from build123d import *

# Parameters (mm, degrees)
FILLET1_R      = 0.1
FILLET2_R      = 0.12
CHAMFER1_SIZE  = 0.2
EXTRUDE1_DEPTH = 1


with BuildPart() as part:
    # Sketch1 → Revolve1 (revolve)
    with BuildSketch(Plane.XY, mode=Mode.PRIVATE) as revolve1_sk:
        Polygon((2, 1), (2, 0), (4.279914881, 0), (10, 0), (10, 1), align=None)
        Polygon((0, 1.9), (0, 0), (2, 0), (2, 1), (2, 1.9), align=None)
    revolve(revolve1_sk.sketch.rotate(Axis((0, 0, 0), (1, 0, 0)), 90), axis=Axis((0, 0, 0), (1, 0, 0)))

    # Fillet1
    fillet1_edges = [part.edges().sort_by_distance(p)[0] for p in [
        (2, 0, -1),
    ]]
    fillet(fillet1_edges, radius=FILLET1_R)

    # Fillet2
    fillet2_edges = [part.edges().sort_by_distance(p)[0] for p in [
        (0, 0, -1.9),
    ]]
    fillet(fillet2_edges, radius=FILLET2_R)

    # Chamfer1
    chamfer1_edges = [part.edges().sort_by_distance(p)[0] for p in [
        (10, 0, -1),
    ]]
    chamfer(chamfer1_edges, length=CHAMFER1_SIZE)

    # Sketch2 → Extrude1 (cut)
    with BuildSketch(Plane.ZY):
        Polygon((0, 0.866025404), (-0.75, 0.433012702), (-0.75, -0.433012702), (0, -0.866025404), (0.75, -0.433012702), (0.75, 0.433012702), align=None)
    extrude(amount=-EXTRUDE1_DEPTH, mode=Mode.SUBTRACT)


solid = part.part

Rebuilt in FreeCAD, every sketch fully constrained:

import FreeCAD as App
import Part
import Sketcher
from FreeCAD import Vector
Q = App.Units.Quantity


def edges_at(feature, points):
    """Names of the edges that pass closest to the given points."""
    edges = feature.Shape.Edges
    near = lambda p: min(range(len(edges)), key=lambda i: edges[i].distToShape(Part.Vertex(*p))[0])
    return sorted({f"Edge{near(p) + 1}" for p in points})


def add_polygon(sketch, points):
    """Adds a closed chain of lines whose ends are joined by coincident constraints."""
    first, n = sketch.GeometryCount, len(points)
    for a, b in zip(points, points[1:] + points[:1]):
        sketch.addGeometry(Part.LineSegment(App.Vector(*a, 0), App.Vector(*b, 0)), False)
    for i in range(n):
        sketch.addConstraint(Sketcher.Constraint("Coincident", first + i, 2, first + (i + 1) % n, 1))

doc = App.newDocument("Part")
body = doc.addObject("PartDesign::Body", "Body")

# Sketch on XY plane
sketch1 = body.newObject("Sketcher::SketchObject", "Sketch")
sketch1.AttachmentSupport = (doc.getObject("XY_Plane"), [""])
sketch1.MapMode = "FlatFace"
add_polygon(sketch1, [(10, 0), (10, 1), (2, 1), (2, 1.9), (0, 1.9), (0, 0)])  # lines 0-5
sketch1.addConstraint([
    Sketcher.Constraint("Vertical", 0),
    Sketcher.Constraint("Horizontal", 1),
    Sketcher.Constraint("Vertical", 2),
    Sketcher.Constraint("Horizontal", 3),
    Sketcher.Constraint("Vertical", 4),
    Sketcher.Constraint("Horizontal", 5),
    Sketcher.Constraint("Coincident", 4, 2, -1, 1),
    Sketcher.Constraint("DistanceX", 1, 2, 1, 1, 8.0),
    Sketcher.Constraint("DistanceX", 3, 2, 3, 1, 2.0),
    Sketcher.Constraint("DistanceY", 0, 1, 0, 2, 1.0),
    Sketcher.Constraint("DistanceY", 2, 1, 2, 2, 0.9),
])
revolution = body.newObject("PartDesign::Revolution", "Revolution")
revolution.Profile = sketch1
revolution.ReferenceAxis = (sketch1, ["H_Axis"])
revolution.Angle = 360
doc.recompute()

fillet = body.newObject("PartDesign::Fillet", "Fillet")
fillet.Base = (revolution, edges_at(revolution, [(2, 0, -1)]))
fillet.Radius = 0.1
doc.recompute()

fillet2 = body.newObject("PartDesign::Fillet", "Fillet001")
fillet2.Base = (fillet, edges_at(fillet, [(0, 0, -1.9)]))
fillet2.Radius = 0.12
doc.recompute()

chamfer = body.newObject("PartDesign::Chamfer", "Chamfer")
chamfer.Base = (fillet2, edges_at(fillet2, [(10, 0, -1)]))
chamfer.Size = 0.2

# Sketch on YZ plane
sketch2 = body.newObject("Sketcher::SketchObject", "Sketch001")
sketch2.AttachmentSupport = (doc.getObject("YZ_Plane"), [""])
sketch2.MapMode = "FlatFace"
add_polygon(sketch2, [(0.866025, 0), (0.433013, -0.75), (-0.433013, -0.75), (-0.866025, 0), (-0.433013, 0.75), (0.433013, 0.75)])  # lines 0-5
sketch2.addConstraint([
    Sketcher.Constraint("Horizontal", 1),
    Sketcher.Constraint("Horizontal", 4),
    Sketcher.Constraint("Symmetric", 0, 2, 3, 2, -1, 1),
    Sketcher.Constraint("Symmetric", 2, 2, 5, 2, -1, 1),
    Sketcher.Constraint("PointOnObject", 2, 2, -1),
    Sketcher.Constraint("Parallel", 2, 5),
    Sketcher.Constraint("Vertical", 1, 2, 3, 2),
    Sketcher.Constraint("Angle", 0, Q("-120 deg")),
    Sketcher.Constraint("DistanceY", 1, 2, 3, 2, 1.5),
    Sketcher.Constraint("DistanceX", 1, 2, 1, 1, 0.866025),
])
pocket1 = body.newObject("PartDesign::Pocket", "Pocket")
pocket1.Profile = sketch2
pocket1.Length = 1
pocket1.Reversed = True

doc.recompute()
